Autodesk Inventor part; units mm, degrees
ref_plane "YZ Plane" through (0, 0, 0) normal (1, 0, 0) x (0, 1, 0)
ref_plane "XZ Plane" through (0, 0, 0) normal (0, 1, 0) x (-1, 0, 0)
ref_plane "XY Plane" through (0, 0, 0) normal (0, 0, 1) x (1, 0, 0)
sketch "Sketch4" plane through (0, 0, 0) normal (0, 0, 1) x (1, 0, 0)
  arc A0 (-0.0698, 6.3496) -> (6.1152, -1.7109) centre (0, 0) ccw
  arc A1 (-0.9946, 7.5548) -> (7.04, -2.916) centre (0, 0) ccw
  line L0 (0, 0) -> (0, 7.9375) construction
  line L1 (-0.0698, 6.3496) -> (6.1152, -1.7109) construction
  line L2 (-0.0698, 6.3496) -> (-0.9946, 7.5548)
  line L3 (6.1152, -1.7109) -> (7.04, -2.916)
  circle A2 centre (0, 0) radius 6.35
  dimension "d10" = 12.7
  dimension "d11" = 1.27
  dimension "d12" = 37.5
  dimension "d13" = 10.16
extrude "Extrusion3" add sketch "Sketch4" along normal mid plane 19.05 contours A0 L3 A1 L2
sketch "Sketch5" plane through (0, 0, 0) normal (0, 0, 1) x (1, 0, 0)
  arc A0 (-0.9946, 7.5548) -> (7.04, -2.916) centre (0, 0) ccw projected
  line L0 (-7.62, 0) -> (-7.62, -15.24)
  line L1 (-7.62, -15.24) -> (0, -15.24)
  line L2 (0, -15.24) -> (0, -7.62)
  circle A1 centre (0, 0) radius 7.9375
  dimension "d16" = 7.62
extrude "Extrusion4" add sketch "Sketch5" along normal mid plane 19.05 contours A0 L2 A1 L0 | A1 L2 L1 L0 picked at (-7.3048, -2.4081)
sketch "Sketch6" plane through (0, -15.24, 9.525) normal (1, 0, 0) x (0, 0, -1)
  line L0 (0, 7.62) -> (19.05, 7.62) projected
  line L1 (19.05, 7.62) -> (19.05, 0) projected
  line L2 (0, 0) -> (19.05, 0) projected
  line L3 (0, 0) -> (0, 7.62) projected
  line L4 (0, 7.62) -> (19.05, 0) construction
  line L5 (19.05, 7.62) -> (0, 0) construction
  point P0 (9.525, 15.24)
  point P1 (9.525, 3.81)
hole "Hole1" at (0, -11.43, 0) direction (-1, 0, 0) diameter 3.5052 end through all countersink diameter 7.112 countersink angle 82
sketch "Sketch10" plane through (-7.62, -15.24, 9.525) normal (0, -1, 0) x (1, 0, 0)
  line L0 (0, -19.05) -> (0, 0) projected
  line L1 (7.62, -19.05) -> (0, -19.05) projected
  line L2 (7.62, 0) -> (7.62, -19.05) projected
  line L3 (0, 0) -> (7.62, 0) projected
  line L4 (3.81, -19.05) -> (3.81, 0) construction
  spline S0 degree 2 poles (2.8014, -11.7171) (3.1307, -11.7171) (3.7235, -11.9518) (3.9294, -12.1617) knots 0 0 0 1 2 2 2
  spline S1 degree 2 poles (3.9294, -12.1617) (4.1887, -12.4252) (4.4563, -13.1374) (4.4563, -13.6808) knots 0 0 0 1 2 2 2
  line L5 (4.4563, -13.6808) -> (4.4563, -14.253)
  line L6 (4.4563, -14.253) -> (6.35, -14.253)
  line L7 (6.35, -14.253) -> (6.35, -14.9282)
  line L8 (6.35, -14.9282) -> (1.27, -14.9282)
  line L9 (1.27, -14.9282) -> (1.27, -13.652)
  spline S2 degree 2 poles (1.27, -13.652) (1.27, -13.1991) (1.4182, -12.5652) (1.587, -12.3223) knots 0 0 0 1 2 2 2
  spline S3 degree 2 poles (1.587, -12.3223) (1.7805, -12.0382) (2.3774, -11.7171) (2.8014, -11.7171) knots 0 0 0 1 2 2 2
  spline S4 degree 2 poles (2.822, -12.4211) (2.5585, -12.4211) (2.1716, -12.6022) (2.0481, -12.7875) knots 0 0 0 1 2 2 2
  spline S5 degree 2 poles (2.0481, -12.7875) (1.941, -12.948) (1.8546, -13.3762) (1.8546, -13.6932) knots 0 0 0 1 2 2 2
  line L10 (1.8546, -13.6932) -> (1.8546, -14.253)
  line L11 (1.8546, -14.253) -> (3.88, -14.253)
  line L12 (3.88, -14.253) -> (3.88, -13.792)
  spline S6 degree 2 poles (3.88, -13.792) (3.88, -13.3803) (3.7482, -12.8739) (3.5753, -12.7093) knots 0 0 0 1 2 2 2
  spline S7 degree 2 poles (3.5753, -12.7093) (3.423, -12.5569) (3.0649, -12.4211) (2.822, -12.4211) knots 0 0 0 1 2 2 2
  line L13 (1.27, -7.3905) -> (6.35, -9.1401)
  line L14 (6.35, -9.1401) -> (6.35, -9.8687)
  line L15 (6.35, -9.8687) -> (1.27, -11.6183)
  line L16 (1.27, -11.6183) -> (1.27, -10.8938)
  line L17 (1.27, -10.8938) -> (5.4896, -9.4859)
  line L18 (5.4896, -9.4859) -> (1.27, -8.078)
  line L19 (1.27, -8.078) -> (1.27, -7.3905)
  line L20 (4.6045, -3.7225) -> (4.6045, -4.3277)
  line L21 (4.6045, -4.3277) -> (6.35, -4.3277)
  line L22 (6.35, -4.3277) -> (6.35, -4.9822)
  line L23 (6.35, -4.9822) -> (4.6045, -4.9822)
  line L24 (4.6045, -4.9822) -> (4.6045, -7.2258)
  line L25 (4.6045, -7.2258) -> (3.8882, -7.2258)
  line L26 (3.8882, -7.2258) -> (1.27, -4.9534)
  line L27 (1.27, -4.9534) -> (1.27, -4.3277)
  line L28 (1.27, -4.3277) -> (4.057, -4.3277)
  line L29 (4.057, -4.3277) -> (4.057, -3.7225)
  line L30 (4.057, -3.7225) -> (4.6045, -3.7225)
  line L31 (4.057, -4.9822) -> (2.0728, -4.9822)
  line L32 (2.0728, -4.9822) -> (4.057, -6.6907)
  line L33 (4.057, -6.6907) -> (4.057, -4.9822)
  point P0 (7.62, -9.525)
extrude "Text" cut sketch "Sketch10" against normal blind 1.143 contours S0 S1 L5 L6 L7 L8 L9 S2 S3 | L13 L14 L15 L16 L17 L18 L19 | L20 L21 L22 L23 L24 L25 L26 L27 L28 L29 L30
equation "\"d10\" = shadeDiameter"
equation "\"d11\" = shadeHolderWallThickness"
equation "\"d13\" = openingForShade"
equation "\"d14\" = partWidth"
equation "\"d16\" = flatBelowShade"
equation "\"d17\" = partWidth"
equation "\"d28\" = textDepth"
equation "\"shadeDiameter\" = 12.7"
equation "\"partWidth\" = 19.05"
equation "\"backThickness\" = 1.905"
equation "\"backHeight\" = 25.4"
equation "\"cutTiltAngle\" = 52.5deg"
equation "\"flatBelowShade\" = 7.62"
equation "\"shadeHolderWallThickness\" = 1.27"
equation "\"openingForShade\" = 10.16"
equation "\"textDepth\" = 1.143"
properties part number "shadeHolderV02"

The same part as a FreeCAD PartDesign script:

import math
import FreeCAD as App
import Part
import Sketcher

V = App.Vector
Q = App.Units.Quantity

doc = App.newDocument("Part")
body = doc.addObject("PartDesign::Body", "Body")

sketch1 = body.newObject("Sketcher::SketchObject", "Sketch")
sketch1.AttachmentSupport = (doc.getObject("XY_Plane"), [""])
sketch1.MapMode = "FlatFace"
sketch1.addGeometry([
    Part.ArcOfCircle(Part.Circle(V(0, 0, 0), V(0, 0, 1), 6.3), math.radians(91), math.radians(344)),
    Part.LineSegment(V(-0.1, 6.3, 0), V(-1, 7.6, 0)),
    Part.ArcOfCircle(Part.Circle(V(0, 0, 0), V(0, 0, 1), 7.6), math.radians(97), math.radians(338)),
    Part.LineSegment(V(7, -2.9, 0), V(6.1, -1.7, 0)),
], False)
sketch1.addConstraint([
    Sketcher.Constraint("Coincident", 0, 1, 1, 1),
    Sketcher.Constraint("Coincident", 1, 2, 2, 1),
    Sketcher.Constraint("Coincident", 2, 2, 3, 1),
    Sketcher.Constraint("Coincident", 3, 2, 0, 2),
    Sketcher.Constraint("Coincident", 0, 3, -1, 1),
    Sketcher.Constraint("Coincident", 2, 3, -1, 1),
    Sketcher.Constraint("Parallel", 1, 3),
    Sketcher.Constraint("Equal", 1, 3),
    Sketcher.Constraint("Radius", 0, Q("0.25 in")),
    Sketcher.Constraint("Radius", 2, Q("0.3 in")),
    Sketcher.Constraint("Angle", 1, Q("127.5005 deg")),
    Sketcher.Constraint("Distance", 1, Q("0.0598 in")),
])
pad1 = body.newObject("PartDesign::Pad", "Pad")
pad1.Profile = sketch1
pad1.Length = Q("0.75 in")
pad1.Midplane = True

sketch2 = body.newObject("Sketcher::SketchObject", "Sketch001")
sketch2.AttachmentSupport = (doc.getObject("XY_Plane"), [""])
sketch2.MapMode = "FlatFace"
sketch2.addGeometry([
    Part.ArcOfCircle(Part.Circle(V(0, 0, 0), V(0, 0, 1), 8), math.radians(180), math.radians(270)),
    Part.LineSegment(V(-8, 0, 0), V(-8, -15, 0)),
    Part.LineSegment(V(-8, -15, 0), V(0, -15, 0)),
    Part.LineSegment(V(0, -15, 0), V(0, -8, 0)),
], False)
sketch2.addConstraint([
    Sketcher.Constraint("Tangent", 0, 1, 1, 1),
    Sketcher.Constraint("Coincident", 1, 2, 2, 1),
    Sketcher.Constraint("Coincident", 2, 2, 3, 1),
    Sketcher.Constraint("Coincident", 3, 2, 0, 2),
    Sketcher.Constraint("Vertical", 1),
    Sketcher.Constraint("Horizontal", 2),
    Sketcher.Constraint("Vertical", 3),
    Sketcher.Constraint("Coincident", 0, 3, -1, 1),
    Sketcher.Constraint("PointOnObject", 2, 2, -2),
    Sketcher.Constraint("Equal", 2, 3),
    Sketcher.Constraint("Radius", 0, Q("0.3 in")),
])
pad2 = body.newObject("PartDesign::Pad", "Pad001")
pad2.Profile = sketch2
pad2.Length = Q("0.75 in")
pad2.Midplane = True

sketch3 = body.newObject("Sketcher::SketchObject", "Sketch002")
sketch3.AttachmentSupport = (doc.getObject("YZ_Plane"), [""])
sketch3.MapMode = "FlatFace"
sketch3.addGeometry(Part.Circle(V(-11.4, 0, 0), V(0, 0, 1), 1.8), False)
sketch3.addConstraint([
    Sketcher.Constraint("PointOnObject", 0, 3, -1),
    Sketcher.Constraint("Diameter", 0, Q("0.138 in")),
    Sketcher.Constraint("DistanceX", 0, 3, -1, 1, Q("0.45 in")),
])
doc.recompute()
hole = body.newObject("PartDesign::Hole", "Hole")
hole.Profile = sketch3
hole.ThreadType = "None"
hole.Diameter = Q("0.138 in")
hole.DepthType = "ThroughAll"
hole.HoleCutType = "Countersink"
hole.HoleCutDiameter = Q("0.28 in")
hole.HoleCutCountersinkAngle = 82

sketch4 = body.newObject("Sketcher::SketchObject", "Sketch003")
sketch4.AttachmentSupport = (doc.getObject("XZ_Plane"), [""])
sketch4.MapMode = "FlatFace"
sketch4.AttachmentOffset = App.Placement(V(0, 0, 0.6 * 25.4), App.Rotation())
sketch4.addGeometry([
    Part.BSplineCurve([V(-4.8186, -2.1921, 0), V(-4.4893, -2.1921, 0), V(-3.8965, -2.4268, 0), V(-3.6906, -2.6367, 0)], [3, 1, 3], [0, 1, 2], False, 2, [1, 1, 1, 1], False),
    Part.BSplineCurve([V(-6.033, -2.7973, 0), V(-5.8395, -2.5132, 0), V(-5.2426, -2.1921, 0), V(-4.8186, -2.1921, 0)], [3, 1, 3], [0, 1, 2], False, 2, [1, 1, 1, 1], False),
    Part.BSplineCurve([V(-6.35, -4.127, 0), V(-6.35, -3.6741, 0), V(-6.2018, -3.0402, 0), V(-6.033, -2.7973, 0)], [3, 1, 3], [0, 1, 2], False, 2, [1, 1, 1, 1], False),
    Part.LineSegment(V(-6.35, -4.127, 0), V(-6.35, -5.4032, 0)),
    Part.LineSegment(V(-6.35, -5.4032, 0), V(-1.27, -5.4032, 0)),
    Part.LineSegment(V(-1.27, -5.4032, 0), V(-1.27, -4.728, 0)),
    Part.LineSegment(V(-1.27, -4.728, 0), V(-3.1637, -4.728, 0)),
    Part.LineSegment(V(-3.1637, -4.728, 0), V(-3.1637, -4.1558, 0)),
    Part.BSplineCurve([V(-3.6906, -2.6367, 0), V(-3.4313, -2.9002, 0), V(-3.1637, -3.6124, 0), V(-3.1637, -4.1558, 0)], [3, 1, 3], [0, 1, 2], False, 2, [1, 1, 1, 1], False),
    Part.BSplineCurve([V(-4.798, -2.8961, 0), V(-5.0615, -2.8961, 0), V(-5.4484, -3.0772, 0), V(-5.5719, -3.2625, 0)], [3, 1, 3], [0, 1, 2], False, 2, [1, 1, 1, 1], False),
    Part.BSplineCurve([V(-4.0447, -3.1843, 0), V(-4.197, -3.0319, 0), V(-4.5551, -2.8961, 0), V(-4.798, -2.8961, 0)], [3, 1, 3], [0, 1, 2], False, 2, [1, 1, 1, 1], False),
    Part.BSplineCurve([V(-3.74, -4.267, 0), V(-3.74, -3.8553, 0), V(-3.8718, -3.3489, 0), V(-4.0447, -3.1843, 0)], [3, 1, 3], [0, 1, 2], False, 2, [1, 1, 1, 1], False),
    Part.LineSegment(V(-3.74, -4.267, 0), V(-3.74, -4.728, 0)),
    Part.LineSegment(V(-3.74, -4.728, 0), V(-5.7654, -4.728, 0)),
    Part.LineSegment(V(-5.7654, -4.728, 0), V(-5.7654, -4.1682, 0)),
    Part.BSplineCurve([V(-5.5719, -3.2625, 0), V(-5.679, -3.423, 0), V(-5.7654, -3.8512, 0), V(-5.7654, -4.1682, 0)], [3, 1, 3], [0, 1, 2], False, 2, [1, 1, 1, 1], False),
    Part.LineSegment(V(-1.27, 0.3849, 0), V(-6.35, 2.1345, 0)),
    Part.LineSegment(V(-6.35, 2.1345, 0), V(-6.35, 1.447, 0)),
    Part.LineSegment(V(-6.35, 1.447, 0), V(-2.1304, 0.0391, 0)),
    Part.LineSegment(V(-2.1304, 0.0391, 0), V(-6.35, -1.3688, 0)),
    Part.LineSegment(V(-6.35, -1.3688, 0), V(-6.35, -2.0933, 0)),
    Part.LineSegment(V(-6.35, -2.0933, 0), V(-1.27, -0.3437, 0)),
    Part.LineSegment(V(-1.27, -0.3437, 0), V(-1.27, 0.3849, 0)),
    Part.LineSegment(V(-3.0155, 5.1973, 0), V(-3.0155, 5.8025, 0)),
    Part.LineSegment(V(-3.0155, 5.8025, 0), V(-3.563, 5.8025, 0)),
    Part.LineSegment(V(-3.563, 5.8025, 0), V(-3.563, 5.1973, 0)),
    Part.LineSegment(V(-3.563, 5.1973, 0), V(-6.35, 5.1973, 0)),
    Part.LineSegment(V(-6.35, 5.1973, 0), V(-6.35, 4.5716, 0)),
    Part.LineSegment(V(-6.35, 4.5716, 0), V(-3.7318, 2.2992, 0)),
    Part.LineSegment(V(-3.7318, 2.2992, 0), V(-3.0155, 2.2992, 0)),
    Part.LineSegment(V(-3.0155, 2.2992, 0), V(-3.0155, 4.5428, 0)),
    Part.LineSegment(V(-3.0155, 4.5428, 0), V(-1.27, 4.5428, 0)),
    Part.LineSegment(V(-1.27, 4.5428, 0), V(-1.27, 5.1973, 0)),
    Part.LineSegment(V(-1.27, 5.1973, 0), V(-3.0155, 5.1973, 0)),
    Part.LineSegment(V(-5.5472, 4.5428, 0), V(-3.563, 4.5428, 0)),
    Part.LineSegment(V(-3.563, 4.5428, 0), V(-3.563, 2.8343, 0)),
    Part.LineSegment(V(-3.563, 2.8343, 0), V(-5.5472, 4.5428, 0)),
], False)
sketch4.addConstraint([
    Sketcher.Constraint("Block", 0),
    Sketcher.Constraint("Block", 1),
    Sketcher.Constraint("Block", 2),
    Sketcher.Constraint("Block", 8),
    Sketcher.Constraint("Block", 9),
    Sketcher.Constraint("Block", 10),
    Sketcher.Constraint("Block", 11),
    Sketcher.Constraint("Block", 15),
    Sketcher.Constraint("Coincident", 2, 1, 3, 1),
    Sketcher.Constraint("Coincident", 3, 2, 4, 1),
    Sketcher.Constraint("Coincident", 4, 2, 5, 1),
    Sketcher.Constraint("Coincident", 5, 2, 6, 1),
    Sketcher.Constraint("Coincident", 6, 2, 7, 1),
    Sketcher.Constraint("Coincident", 7, 2, 8, 2),
    Sketcher.Constraint("Coincident", 11, 1, 12, 1),
    Sketcher.Constraint("Coincident", 12, 2, 13, 1),
    Sketcher.Constraint("Coincident", 13, 2, 14, 1),
    Sketcher.Constraint("Coincident", 14, 2, 15, 2),
    Sketcher.Constraint("Coincident", 16, 2, 17, 1),
    Sketcher.Constraint("Coincident", 17, 2, 18, 1),
    Sketcher.Constraint("Coincident", 18, 2, 19, 1),
    Sketcher.Constraint("Coincident", 19, 2, 20, 1),
    Sketcher.Constraint("Coincident", 20, 2, 21, 1),
    Sketcher.Constraint("Coincident", 21, 2, 22, 1),
    Sketcher.Constraint("Coincident", 22, 2, 16, 1),
    Sketcher.Constraint("Coincident", 23, 2, 24, 1),
    Sketcher.Constraint("Coincident", 24, 2, 25, 1),
    Sketcher.Constraint("Coincident", 25, 2, 26, 1),
    Sketcher.Constraint("Coincident", 26, 2, 27, 1),
    Sketcher.Constraint("Coincident", 27, 2, 28, 1),
    Sketcher.Constraint("Coincident", 28, 2, 29, 1),
    Sketcher.Constraint("Coincident", 29, 2, 30, 1),
    Sketcher.Constraint("Coincident", 30, 2, 31, 1),
    Sketcher.Constraint("Coincident", 31, 2, 32, 1),
    Sketcher.Constraint("Coincident", 32, 2, 33, 1),
    Sketcher.Constraint("Coincident", 33, 2, 23, 1),
    Sketcher.Constraint("Coincident", 34, 2, 35, 1),
    Sketcher.Constraint("Coincident", 35, 2, 36, 1),
    Sketcher.Constraint("Coincident", 36, 2, 34, 1),
    Sketcher.Constraint("Vertical", 3),
    Sketcher.Constraint("Horizontal", 4),
    Sketcher.Constraint("Vertical", 5),
    Sketcher.Constraint("Horizontal", 6),
    Sketcher.Constraint("Vertical", 7),
    Sketcher.Constraint("Vertical", 12),
    Sketcher.Constraint("Horizontal", 13),
    Sketcher.Constraint("Vertical", 14),
    Sketcher.Constraint("Vertical", 17),
    Sketcher.Constraint("Vertical", 20),
    Sketcher.Constraint("Vertical", 22),
    Sketcher.Constraint("Vertical", 23),
    Sketcher.Constraint("Horizontal", 24),
    Sketcher.Constraint("Vertical", 25),
    Sketcher.Constraint("Horizontal", 26),
    Sketcher.Constraint("Vertical", 27),
    Sketcher.Constraint("Horizontal", 29),
    Sketcher.Constraint("Vertical", 30),
    Sketcher.Constraint("Horizontal", 31),
    Sketcher.Constraint("Vertical", 32),
    Sketcher.Constraint("Horizontal", 33),
    Sketcher.Constraint("Horizontal", 34),
    Sketcher.Constraint("Vertical", 35),
    Sketcher.Constraint("Horizontal", 6, 2, 12, 2),
    Sketcher.Constraint("Horizontal", 26, 2, 32, 2),
    Sketcher.Constraint("Horizontal", 31, 2, 34, 2),
    Sketcher.Constraint("Vertical", 3, 2, 16, 2),
    Sketcher.Constraint("Vertical", 17, 2, 19, 2),
    Sketcher.Constraint("Vertical", 5, 2, 21, 2),
    Sketcher.Constraint("Vertical", 20, 2, 26, 2),
    Sketcher.Constraint("Vertical", 23, 2, 29, 2),
    Sketcher.Constraint("Vertical", 22, 2, 31, 2),
    Sketcher.Constraint("Vertical", 25, 2, 34, 2),
    Sketcher.Constraint("Equal", 18, 19),
    Sketcher.Constraint("Equal", 16, 21),
    Sketcher.Constraint("DistanceX", 4, 1, 4, 2, Q("0.2 in")),
    Sketcher.Constraint("DistanceX", 34, 1, 34, 2, Q("0.0781181 in")),
    Sketcher.Constraint("Angle", 36, Q("139.2698 deg")),
    Sketcher.Constraint("DistanceX", 29, 1, 29, 2, Q("0.0282 in")),
    Sketcher.Constraint("Distance", 28, Q("0.1365 in")),
    Sketcher.Constraint("DistanceX", 24, 2, 24, 1, 0.5475),
    Sketcher.Constraint("DistanceX", 26, 2, 26, 1, 2.787),
    Sketcher.Constraint("DistanceY", 3, 2, 3, 1, 1.2762),
    Sketcher.Constraint("DistanceY", 5, 1, 5, 2, 0.6752),
    Sketcher.Constraint("DistanceY", 17, 2, 17, 1, 0.6875),
    Sketcher.Constraint("DistanceY", 20, 2, 20, 1, 0.7245),
    Sketcher.Constraint("DistanceY", 22, 1, 22, 2, 0.7286),
    Sketcher.Constraint("DistanceY", 23, 1, 23, 2, 0.6052),
    Sketcher.Constraint("DistanceY", 27, 2, 27, 1, 0.6257),
    Sketcher.Constraint("DistanceY", 30, 1, 30, 2, 2.2436),
    Sketcher.Constraint("DistanceY", 19, 2, -1, 1, Q("0.0539 in")),
    Sketcher.Constraint("DistanceY", 13, 2, 17, 2, Q("0.2431 in")),
    Sketcher.Constraint("DistanceY", 16, 2, 23, 2, Q("0.1444 in")),
    Sketcher.Constraint("DistanceX", 24, 2, 18, 2, Q("0.0564 in")),
])
pocket1 = body.newObject("PartDesign::Pocket", "Pocket")
pocket1.Profile = sketch4
pocket1.Length = Q("0.045 in")

doc.recompute()
